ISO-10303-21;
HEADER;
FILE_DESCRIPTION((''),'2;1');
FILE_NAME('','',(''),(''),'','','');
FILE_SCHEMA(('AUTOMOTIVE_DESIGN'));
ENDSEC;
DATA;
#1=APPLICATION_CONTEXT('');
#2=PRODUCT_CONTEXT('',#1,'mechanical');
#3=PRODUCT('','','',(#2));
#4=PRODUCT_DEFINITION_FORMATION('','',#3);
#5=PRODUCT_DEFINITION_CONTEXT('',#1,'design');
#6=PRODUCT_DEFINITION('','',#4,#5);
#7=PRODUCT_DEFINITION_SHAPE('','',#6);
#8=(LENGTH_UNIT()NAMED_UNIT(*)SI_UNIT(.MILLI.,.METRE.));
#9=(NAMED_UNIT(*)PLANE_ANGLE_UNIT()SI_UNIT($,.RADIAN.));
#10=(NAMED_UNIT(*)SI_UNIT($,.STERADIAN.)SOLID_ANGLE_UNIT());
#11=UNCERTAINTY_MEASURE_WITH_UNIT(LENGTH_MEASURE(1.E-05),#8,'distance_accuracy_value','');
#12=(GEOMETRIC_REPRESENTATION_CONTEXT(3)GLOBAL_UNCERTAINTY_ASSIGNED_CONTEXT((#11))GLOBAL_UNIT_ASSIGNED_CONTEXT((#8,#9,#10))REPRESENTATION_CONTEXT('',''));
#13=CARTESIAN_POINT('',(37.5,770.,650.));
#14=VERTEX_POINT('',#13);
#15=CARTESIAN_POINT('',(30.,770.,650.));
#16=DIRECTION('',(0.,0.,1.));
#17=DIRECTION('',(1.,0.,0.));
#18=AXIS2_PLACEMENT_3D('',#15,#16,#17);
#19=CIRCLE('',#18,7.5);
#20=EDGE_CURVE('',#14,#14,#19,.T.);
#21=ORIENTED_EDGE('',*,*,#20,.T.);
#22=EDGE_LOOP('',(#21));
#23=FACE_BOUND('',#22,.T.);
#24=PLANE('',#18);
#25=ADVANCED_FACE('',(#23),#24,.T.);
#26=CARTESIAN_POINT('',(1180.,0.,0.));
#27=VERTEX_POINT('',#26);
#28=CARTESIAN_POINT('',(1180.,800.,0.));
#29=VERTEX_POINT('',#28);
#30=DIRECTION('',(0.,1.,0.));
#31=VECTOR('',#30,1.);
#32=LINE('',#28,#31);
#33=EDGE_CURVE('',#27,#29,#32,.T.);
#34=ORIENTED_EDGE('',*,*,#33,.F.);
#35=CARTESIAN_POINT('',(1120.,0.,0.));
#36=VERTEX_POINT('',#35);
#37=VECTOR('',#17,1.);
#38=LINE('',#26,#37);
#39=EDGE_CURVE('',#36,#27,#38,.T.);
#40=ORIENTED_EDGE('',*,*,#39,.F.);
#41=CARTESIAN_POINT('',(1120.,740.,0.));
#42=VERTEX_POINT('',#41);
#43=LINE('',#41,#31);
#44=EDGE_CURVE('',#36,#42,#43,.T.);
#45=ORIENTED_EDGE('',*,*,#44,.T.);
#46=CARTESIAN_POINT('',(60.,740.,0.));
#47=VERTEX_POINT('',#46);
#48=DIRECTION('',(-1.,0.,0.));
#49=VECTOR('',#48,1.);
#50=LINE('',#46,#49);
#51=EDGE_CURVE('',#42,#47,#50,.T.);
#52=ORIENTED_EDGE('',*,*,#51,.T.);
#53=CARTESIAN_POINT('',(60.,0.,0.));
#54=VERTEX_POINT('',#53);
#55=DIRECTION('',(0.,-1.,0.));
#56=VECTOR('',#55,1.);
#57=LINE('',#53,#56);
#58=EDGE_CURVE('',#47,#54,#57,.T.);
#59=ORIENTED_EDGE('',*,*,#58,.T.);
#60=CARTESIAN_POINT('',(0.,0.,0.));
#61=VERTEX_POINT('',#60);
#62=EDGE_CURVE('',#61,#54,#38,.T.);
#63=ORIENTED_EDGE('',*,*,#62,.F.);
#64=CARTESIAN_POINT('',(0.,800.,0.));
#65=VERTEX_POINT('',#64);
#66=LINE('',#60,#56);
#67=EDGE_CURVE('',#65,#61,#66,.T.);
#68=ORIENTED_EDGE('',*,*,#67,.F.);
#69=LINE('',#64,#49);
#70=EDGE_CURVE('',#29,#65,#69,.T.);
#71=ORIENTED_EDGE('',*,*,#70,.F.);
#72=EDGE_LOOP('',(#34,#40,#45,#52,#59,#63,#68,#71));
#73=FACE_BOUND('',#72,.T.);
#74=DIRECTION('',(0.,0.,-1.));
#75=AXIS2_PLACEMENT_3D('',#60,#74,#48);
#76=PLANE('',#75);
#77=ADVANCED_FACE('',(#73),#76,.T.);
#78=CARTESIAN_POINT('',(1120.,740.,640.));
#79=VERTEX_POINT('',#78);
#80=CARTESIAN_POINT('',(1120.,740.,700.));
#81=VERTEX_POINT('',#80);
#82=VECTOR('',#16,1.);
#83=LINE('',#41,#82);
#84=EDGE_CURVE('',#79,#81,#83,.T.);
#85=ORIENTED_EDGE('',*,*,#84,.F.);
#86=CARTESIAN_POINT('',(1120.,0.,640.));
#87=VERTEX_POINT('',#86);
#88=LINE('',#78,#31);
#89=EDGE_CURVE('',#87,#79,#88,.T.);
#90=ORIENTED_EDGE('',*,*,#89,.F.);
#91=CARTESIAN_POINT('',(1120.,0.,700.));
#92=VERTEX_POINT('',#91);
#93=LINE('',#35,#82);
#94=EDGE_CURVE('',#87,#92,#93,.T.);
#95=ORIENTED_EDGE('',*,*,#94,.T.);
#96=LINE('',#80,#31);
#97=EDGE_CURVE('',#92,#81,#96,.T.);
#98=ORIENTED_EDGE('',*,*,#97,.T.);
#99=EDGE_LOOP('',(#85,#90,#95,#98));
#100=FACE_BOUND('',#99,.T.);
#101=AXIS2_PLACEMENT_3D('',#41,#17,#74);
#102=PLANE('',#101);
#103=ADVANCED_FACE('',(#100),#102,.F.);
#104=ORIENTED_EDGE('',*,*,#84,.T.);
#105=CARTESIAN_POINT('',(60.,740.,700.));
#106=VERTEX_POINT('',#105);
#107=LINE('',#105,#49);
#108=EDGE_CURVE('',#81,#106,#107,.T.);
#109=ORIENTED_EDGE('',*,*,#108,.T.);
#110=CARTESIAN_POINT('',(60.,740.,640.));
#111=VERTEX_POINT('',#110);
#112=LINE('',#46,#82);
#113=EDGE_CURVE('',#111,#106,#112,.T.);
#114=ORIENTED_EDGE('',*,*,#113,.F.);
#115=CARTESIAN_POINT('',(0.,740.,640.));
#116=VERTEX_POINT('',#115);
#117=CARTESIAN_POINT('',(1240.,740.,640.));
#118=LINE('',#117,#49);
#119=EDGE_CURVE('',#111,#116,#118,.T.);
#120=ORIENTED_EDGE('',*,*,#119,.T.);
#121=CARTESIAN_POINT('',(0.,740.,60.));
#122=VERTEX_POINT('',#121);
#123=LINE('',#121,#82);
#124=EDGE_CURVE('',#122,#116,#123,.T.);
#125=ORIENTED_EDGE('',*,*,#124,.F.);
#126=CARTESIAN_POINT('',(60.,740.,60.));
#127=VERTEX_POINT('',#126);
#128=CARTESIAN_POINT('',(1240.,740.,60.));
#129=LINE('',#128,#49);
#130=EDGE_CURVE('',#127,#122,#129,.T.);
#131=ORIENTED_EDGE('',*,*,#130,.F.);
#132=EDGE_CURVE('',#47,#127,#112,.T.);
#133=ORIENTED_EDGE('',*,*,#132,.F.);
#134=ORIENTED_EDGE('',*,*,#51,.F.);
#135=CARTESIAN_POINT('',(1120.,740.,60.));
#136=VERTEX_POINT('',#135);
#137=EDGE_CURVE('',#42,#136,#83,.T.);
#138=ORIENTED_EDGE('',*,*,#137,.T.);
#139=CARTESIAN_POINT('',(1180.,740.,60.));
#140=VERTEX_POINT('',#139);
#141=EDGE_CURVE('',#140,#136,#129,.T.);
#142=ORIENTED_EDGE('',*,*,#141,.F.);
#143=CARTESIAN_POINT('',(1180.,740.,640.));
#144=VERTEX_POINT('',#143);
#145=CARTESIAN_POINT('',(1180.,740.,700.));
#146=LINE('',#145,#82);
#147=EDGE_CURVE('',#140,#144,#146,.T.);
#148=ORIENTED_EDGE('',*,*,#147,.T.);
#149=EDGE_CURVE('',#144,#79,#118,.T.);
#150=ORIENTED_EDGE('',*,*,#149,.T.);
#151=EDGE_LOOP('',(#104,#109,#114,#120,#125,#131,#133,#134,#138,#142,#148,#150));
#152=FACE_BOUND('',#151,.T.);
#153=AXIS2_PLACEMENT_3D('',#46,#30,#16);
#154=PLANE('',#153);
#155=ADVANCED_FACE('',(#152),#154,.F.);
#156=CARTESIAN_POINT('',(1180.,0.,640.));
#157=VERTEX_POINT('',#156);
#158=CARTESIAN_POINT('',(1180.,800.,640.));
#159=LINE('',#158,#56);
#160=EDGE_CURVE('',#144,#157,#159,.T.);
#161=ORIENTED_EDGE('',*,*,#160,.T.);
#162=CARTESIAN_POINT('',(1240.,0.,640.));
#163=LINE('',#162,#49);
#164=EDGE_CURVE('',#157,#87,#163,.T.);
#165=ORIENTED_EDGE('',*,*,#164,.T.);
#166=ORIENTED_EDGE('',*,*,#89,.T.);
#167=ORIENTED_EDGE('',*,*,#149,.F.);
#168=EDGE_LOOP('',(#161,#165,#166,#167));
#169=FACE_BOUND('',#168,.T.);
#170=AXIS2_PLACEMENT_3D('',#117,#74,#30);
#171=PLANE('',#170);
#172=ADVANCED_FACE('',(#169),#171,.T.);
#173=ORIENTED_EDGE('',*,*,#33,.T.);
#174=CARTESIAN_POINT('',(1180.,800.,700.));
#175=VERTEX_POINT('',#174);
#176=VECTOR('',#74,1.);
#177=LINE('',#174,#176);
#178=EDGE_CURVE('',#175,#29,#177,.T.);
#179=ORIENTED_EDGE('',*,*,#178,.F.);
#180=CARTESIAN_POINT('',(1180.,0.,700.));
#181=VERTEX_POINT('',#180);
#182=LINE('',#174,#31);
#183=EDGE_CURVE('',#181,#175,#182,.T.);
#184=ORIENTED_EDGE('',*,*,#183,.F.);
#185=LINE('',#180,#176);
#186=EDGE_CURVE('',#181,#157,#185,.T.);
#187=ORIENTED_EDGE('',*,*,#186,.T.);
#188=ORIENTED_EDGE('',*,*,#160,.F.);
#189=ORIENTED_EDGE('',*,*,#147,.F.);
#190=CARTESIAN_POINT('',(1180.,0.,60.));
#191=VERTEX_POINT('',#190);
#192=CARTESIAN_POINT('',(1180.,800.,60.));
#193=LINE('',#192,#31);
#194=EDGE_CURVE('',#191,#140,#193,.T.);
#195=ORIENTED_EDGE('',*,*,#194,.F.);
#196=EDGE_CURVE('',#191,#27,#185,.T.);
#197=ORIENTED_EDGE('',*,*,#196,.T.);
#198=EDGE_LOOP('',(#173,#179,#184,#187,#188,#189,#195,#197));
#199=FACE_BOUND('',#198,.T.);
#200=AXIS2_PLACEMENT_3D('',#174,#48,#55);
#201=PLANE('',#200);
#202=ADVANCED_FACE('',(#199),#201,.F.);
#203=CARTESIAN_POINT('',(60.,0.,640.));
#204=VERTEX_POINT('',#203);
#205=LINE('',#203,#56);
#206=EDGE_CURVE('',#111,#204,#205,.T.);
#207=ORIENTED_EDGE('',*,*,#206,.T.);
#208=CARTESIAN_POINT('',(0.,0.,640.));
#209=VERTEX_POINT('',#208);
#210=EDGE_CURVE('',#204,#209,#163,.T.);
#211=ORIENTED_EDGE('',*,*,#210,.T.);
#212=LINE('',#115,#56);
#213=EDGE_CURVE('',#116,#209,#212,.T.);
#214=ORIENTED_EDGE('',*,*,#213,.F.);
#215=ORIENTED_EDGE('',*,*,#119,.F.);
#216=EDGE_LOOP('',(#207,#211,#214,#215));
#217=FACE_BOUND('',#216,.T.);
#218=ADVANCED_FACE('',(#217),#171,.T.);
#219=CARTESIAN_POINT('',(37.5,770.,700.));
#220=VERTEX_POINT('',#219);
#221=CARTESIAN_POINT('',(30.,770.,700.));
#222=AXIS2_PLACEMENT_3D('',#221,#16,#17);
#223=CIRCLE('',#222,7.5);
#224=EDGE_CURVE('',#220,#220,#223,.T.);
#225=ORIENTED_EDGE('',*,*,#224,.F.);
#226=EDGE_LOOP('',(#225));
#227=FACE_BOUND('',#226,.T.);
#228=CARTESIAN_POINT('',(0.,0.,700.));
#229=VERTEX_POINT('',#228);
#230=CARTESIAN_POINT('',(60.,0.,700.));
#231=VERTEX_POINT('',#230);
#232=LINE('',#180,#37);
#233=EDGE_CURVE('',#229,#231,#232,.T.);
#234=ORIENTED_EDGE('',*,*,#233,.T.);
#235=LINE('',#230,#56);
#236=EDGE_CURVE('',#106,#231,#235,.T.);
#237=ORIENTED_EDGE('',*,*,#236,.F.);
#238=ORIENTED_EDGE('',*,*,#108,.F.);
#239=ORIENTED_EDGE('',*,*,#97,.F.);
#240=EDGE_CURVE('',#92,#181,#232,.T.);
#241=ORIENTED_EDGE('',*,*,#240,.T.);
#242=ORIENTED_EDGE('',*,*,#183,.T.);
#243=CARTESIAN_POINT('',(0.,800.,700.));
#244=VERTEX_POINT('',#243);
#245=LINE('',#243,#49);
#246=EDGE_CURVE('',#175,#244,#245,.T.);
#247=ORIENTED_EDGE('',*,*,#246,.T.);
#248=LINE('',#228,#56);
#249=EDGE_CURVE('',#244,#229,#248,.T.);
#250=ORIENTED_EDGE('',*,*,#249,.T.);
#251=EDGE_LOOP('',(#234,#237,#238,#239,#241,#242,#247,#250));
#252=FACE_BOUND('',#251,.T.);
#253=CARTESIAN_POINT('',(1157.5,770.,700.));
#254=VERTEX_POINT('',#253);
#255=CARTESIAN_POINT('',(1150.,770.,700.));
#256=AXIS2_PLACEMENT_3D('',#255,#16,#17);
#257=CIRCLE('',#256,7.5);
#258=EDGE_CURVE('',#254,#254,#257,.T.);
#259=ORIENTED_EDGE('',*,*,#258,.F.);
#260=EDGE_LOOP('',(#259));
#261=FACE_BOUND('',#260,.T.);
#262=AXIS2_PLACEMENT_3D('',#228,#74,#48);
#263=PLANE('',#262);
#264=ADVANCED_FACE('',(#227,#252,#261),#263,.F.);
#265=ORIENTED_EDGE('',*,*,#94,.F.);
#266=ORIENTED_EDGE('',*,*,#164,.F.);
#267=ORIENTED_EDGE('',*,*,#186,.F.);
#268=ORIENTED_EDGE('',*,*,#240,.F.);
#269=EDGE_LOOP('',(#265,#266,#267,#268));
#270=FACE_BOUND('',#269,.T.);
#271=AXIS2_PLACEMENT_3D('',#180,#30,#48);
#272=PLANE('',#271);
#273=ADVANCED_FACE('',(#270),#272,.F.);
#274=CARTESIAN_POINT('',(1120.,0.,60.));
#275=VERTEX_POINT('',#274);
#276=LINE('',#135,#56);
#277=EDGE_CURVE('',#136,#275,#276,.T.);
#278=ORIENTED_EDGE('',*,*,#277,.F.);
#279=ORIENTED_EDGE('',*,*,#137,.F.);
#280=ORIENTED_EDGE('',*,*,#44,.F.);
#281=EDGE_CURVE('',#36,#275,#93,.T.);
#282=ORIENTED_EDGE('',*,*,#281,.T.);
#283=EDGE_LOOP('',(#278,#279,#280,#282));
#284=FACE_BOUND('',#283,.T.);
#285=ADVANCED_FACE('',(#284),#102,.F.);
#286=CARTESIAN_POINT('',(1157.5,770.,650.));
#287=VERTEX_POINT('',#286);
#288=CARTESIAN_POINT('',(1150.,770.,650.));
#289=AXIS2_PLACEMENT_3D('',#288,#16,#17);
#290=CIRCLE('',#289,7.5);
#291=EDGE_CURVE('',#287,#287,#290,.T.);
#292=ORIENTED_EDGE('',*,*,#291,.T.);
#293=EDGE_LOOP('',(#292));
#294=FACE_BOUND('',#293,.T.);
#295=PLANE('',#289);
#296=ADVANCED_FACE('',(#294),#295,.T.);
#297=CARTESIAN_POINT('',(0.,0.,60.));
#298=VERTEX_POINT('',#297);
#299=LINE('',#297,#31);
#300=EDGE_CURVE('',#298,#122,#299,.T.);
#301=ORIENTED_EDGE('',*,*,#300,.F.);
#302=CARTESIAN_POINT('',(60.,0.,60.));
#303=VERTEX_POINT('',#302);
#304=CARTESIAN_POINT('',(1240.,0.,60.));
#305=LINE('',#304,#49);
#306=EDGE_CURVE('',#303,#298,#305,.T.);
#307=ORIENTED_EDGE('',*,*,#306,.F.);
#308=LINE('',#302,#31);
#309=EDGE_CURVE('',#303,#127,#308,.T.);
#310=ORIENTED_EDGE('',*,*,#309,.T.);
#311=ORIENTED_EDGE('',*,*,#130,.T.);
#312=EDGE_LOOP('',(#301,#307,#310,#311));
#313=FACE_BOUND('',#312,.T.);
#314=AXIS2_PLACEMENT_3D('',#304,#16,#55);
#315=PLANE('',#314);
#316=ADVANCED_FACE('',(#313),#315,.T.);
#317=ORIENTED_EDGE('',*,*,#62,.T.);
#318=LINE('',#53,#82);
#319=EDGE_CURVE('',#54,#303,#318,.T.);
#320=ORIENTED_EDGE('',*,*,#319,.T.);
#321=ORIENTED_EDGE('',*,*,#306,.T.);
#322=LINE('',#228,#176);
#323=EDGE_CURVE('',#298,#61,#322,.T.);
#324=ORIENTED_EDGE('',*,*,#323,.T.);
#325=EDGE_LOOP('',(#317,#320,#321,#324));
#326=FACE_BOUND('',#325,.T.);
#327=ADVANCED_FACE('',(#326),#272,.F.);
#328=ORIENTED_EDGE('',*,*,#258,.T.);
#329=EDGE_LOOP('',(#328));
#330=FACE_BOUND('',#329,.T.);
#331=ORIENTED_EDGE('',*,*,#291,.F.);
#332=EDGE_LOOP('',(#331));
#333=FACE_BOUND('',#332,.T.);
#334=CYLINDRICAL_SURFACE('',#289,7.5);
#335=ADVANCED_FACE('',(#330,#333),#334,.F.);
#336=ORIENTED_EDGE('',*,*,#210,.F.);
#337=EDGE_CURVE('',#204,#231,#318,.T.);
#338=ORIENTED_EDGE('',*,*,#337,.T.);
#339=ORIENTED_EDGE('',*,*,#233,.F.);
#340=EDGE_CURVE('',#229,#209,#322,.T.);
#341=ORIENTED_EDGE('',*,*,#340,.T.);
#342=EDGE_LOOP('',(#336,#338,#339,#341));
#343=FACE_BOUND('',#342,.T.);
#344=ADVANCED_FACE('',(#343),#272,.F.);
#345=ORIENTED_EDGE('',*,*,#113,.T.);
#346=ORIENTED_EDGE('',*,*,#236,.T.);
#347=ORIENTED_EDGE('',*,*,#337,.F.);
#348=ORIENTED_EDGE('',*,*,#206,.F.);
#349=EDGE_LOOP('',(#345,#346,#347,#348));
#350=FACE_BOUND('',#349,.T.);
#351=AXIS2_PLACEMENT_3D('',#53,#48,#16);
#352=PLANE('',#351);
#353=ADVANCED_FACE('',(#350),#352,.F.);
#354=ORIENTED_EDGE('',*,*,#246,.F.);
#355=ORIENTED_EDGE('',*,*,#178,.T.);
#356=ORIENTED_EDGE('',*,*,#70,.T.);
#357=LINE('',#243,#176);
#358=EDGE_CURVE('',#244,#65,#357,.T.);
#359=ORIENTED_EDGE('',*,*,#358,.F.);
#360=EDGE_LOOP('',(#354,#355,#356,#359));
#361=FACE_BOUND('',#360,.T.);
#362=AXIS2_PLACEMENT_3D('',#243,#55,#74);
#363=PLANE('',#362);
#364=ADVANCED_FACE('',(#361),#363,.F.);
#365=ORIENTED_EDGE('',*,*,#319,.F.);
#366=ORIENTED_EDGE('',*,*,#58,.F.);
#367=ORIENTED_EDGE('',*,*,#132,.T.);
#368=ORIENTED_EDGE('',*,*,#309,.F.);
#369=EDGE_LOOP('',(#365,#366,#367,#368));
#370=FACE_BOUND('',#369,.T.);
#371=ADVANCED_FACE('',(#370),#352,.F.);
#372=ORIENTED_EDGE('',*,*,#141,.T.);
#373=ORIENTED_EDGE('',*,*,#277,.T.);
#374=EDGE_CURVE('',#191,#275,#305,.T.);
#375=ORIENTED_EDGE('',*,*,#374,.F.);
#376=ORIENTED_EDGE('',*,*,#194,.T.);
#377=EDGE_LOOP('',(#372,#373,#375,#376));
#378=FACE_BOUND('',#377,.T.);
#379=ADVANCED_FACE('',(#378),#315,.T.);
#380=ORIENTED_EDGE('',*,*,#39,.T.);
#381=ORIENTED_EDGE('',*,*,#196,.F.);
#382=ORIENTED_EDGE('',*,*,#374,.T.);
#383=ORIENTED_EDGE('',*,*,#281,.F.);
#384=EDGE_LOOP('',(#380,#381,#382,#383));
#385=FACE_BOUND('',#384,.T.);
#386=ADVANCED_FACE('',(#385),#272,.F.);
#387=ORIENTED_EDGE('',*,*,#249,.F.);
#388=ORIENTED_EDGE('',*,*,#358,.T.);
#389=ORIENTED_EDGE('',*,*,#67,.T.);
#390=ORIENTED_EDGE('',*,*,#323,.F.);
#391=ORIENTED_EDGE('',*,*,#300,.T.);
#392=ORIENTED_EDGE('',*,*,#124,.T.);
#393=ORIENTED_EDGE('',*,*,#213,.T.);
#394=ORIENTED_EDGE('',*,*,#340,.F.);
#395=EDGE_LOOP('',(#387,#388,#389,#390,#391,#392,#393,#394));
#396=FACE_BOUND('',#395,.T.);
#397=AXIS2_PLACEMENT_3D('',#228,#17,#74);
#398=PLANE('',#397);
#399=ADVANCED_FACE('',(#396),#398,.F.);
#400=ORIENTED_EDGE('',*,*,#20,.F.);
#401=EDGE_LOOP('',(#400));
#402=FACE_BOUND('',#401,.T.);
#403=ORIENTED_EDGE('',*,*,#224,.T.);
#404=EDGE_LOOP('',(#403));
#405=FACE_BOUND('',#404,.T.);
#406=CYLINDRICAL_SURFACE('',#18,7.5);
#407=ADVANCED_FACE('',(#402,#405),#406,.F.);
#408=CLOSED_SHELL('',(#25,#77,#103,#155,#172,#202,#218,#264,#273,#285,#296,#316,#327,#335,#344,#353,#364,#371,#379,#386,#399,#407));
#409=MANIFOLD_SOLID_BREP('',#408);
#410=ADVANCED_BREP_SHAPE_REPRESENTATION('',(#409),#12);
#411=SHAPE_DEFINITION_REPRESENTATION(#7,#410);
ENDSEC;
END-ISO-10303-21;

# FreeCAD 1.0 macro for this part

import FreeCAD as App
import Part
import Sketcher

V = App.Vector
Q = App.Units.Quantity

doc = App.newDocument("Part")
body = doc.addObject("PartDesign::Body", "Body")

sketch1 = body.newObject("Sketcher::SketchObject", "Sketch")
sketch1.AttachmentSupport = (doc.getObject("XY_Plane"), [""])
sketch1.MapMode = "FlatFace"
sketch1.addGeometry(Part.LineSegment(V(0, 800, 0), V(0, 0, 0)), False)
sketch1.addGeometry(Part.LineSegment(V(0, 0, 0), V(1180, 0, 0)), False)
sketch1.addGeometry(Part.LineSegment(V(1180, 0, 0), V(1180, 800, 0)), False)
sketch1.addGeometry(Part.LineSegment(V(1180, 800, 0), V(0, 800, 0)), False)
sketch1.addConstraint(Sketcher.Constraint("Coincident", 0, 2, 1, 1))
sketch1.addConstraint(Sketcher.Constraint("Coincident", 1, 2, 2, 1))
sketch1.addConstraint(Sketcher.Constraint("Coincident", 2, 2, 3, 1))
sketch1.addConstraint(Sketcher.Constraint("Coincident", 3, 2, 0, 1))
sketch1.addConstraint(Sketcher.Constraint("Vertical", 0))
sketch1.addConstraint(Sketcher.Constraint("Horizontal", 1))
sketch1.addConstraint(Sketcher.Constraint("Vertical", 2))
sketch1.addConstraint(Sketcher.Constraint("Horizontal", 3))
sketch1.addConstraint(Sketcher.Constraint("Coincident", 0, 2, -1, 1))
sketch1.addConstraint(Sketcher.Constraint("DistanceX", 1, 1, 1, 2, Q("1180 mm")))
sketch1.addConstraint(Sketcher.Constraint("DistanceY", 0, 2, 0, 1, Q("800 mm")))
pad1 = body.newObject("PartDesign::Pad", "Pad")
pad1.Profile = sketch1
pad1.Length = 700

sketch2 = body.newObject("Sketcher::SketchObject", "Sketch001")
sketch2.AttachmentSupport = (doc.getObject("XY_Plane"), [""])
sketch2.MapMode = "FlatFace"
sketch2.AttachmentOffset = App.Placement(V(0, 0, 700), App.Rotation())
sketch2.addGeometry(Part.LineSegment(V(60, 740, 0), V(60, 0, 0)), False)
sketch2.addGeometry(Part.LineSegment(V(60, 0, 0), V(1120, 0, 0)), False)
sketch2.addGeometry(Part.LineSegment(V(1120, 0, 0), V(1120, 740, 0)), False)
sketch2.addGeometry(Part.LineSegment(V(1120, 740, 0), V(60, 740, 0)), False)
sketch2.addConstraint(Sketcher.Constraint("Coincident", 0, 2, 1, 1))
sketch2.addConstraint(Sketcher.Constraint("Coincident", 1, 2, 2, 1))
sketch2.addConstraint(Sketcher.Constraint("Coincident", 2, 2, 3, 1))
sketch2.addConstraint(Sketcher.Constraint("Coincident", 3, 2, 0, 1))
sketch2.addConstraint(Sketcher.Constraint("Vertical", 0))
sketch2.addConstraint(Sketcher.Constraint("Horizontal", 1))
sketch2.addConstraint(Sketcher.Constraint("Vertical", 2))
sketch2.addConstraint(Sketcher.Constraint("Horizontal", 3))
sketch2.addConstraint(Sketcher.Constraint("PointOnObject", 0, 2, -1))
sketch2.addConstraint(Sketcher.Constraint("DistanceX", 1, 1, 1, 2, Q("1060 mm")))
sketch2.addConstraint(Sketcher.Constraint("DistanceY", 0, 2, 0, 1, Q("740 mm")))
sketch2.addConstraint(Sketcher.Constraint("DistanceX", -1, 1, 0, 2, Q("60 mm")))
pocket1 = body.newObject("PartDesign::Pocket", "Pocket")
pocket1.Profile = sketch2
pocket1.Length = 700

sketch3 = body.newObject("Sketcher::SketchObject", "Sketch002")
sketch3.AttachmentSupport = (doc.getObject("YZ_Plane"), [""])
sketch3.MapMode = "FlatFace"
sketch3.addGeometry(Part.LineSegment(V(740, 60, 0), V(0, 60, 0)), False)
sketch3.addGeometry(Part.LineSegment(V(0, 60, 0), V(0, 640, 0)), False)
sketch3.addGeometry(Part.LineSegment(V(0, 640, 0), V(740, 640, 0)), False)
sketch3.addGeometry(Part.LineSegment(V(740, 640, 0), V(740, 60, 0)), False)
sketch3.addConstraint(Sketcher.Constraint("Coincident", 0, 2, 1, 1))
sketch3.addConstraint(Sketcher.Constraint("Coincident", 1, 2, 2, 1))
sketch3.addConstraint(Sketcher.Constraint("Coincident", 2, 2, 3, 1))
sketch3.addConstraint(Sketcher.Constraint("Coincident", 3, 2, 0, 1))
sketch3.addConstraint(Sketcher.Constraint("Horizontal", 0))
sketch3.addConstraint(Sketcher.Constraint("Vertical", 1))
sketch3.addConstraint(Sketcher.Constraint("Horizontal", 2))
sketch3.addConstraint(Sketcher.Constraint("Vertical", 3))
sketch3.addConstraint(Sketcher.Constraint("PointOnObject", 0, 2, -2))
sketch3.addConstraint(Sketcher.Constraint("DistanceX", 0, 2, 0, 1, Q("740 mm")))
sketch3.addConstraint(Sketcher.Constraint("DistanceY", 1, 1, 1, 2, Q("580 mm")))
sketch3.addConstraint(Sketcher.Constraint("DistanceY", -1, 1, 0, 2, Q("60 mm")))
pocket2 = body.newObject("PartDesign::Pocket", "Pocket001")
pocket2.Profile = sketch3
pocket2.Length = 1240
pocket2.Reversed = True

sketch4 = body.newObject("Sketcher::SketchObject", "Sketch003")
sketch4.AttachmentSupport = (doc.getObject("XY_Plane"), [""])
sketch4.MapMode = "FlatFace"
sketch4.AttachmentOffset = App.Placement(V(0, 0, 700), App.Rotation())
sketch4.addGeometry(Part.Circle(V(30, 770, 0), V(0, 0, 1), 8), False)
sketch4.addGeometry(Part.Circle(V(1150, 770, 0), V(0, 0, 1), 8), False)
sketch4.addConstraint(Sketcher.Constraint("Equal", 0, 1))
sketch4.addConstraint(Sketcher.Constraint("Horizontal", 0, 3, 1, 3))
sketch4.addConstraint(Sketcher.Constraint("Diameter", 0, Q("15 mm")))
sketch4.addConstraint(Sketcher.Constraint("DistanceX", -1, 1, 0, 3, Q("30 mm")))
sketch4.addConstraint(Sketcher.Constraint("DistanceY", -1, 1, 0, 3, Q("770 mm")))
sketch4.addConstraint(Sketcher.Constraint("DistanceX", -1, 1, 1, 3, Q("1150 mm")))
pocket3 = body.newObject("PartDesign::Pocket", "Pocket002")
pocket3.Profile = sketch4
pocket3.Length = 50

doc.recompute()
